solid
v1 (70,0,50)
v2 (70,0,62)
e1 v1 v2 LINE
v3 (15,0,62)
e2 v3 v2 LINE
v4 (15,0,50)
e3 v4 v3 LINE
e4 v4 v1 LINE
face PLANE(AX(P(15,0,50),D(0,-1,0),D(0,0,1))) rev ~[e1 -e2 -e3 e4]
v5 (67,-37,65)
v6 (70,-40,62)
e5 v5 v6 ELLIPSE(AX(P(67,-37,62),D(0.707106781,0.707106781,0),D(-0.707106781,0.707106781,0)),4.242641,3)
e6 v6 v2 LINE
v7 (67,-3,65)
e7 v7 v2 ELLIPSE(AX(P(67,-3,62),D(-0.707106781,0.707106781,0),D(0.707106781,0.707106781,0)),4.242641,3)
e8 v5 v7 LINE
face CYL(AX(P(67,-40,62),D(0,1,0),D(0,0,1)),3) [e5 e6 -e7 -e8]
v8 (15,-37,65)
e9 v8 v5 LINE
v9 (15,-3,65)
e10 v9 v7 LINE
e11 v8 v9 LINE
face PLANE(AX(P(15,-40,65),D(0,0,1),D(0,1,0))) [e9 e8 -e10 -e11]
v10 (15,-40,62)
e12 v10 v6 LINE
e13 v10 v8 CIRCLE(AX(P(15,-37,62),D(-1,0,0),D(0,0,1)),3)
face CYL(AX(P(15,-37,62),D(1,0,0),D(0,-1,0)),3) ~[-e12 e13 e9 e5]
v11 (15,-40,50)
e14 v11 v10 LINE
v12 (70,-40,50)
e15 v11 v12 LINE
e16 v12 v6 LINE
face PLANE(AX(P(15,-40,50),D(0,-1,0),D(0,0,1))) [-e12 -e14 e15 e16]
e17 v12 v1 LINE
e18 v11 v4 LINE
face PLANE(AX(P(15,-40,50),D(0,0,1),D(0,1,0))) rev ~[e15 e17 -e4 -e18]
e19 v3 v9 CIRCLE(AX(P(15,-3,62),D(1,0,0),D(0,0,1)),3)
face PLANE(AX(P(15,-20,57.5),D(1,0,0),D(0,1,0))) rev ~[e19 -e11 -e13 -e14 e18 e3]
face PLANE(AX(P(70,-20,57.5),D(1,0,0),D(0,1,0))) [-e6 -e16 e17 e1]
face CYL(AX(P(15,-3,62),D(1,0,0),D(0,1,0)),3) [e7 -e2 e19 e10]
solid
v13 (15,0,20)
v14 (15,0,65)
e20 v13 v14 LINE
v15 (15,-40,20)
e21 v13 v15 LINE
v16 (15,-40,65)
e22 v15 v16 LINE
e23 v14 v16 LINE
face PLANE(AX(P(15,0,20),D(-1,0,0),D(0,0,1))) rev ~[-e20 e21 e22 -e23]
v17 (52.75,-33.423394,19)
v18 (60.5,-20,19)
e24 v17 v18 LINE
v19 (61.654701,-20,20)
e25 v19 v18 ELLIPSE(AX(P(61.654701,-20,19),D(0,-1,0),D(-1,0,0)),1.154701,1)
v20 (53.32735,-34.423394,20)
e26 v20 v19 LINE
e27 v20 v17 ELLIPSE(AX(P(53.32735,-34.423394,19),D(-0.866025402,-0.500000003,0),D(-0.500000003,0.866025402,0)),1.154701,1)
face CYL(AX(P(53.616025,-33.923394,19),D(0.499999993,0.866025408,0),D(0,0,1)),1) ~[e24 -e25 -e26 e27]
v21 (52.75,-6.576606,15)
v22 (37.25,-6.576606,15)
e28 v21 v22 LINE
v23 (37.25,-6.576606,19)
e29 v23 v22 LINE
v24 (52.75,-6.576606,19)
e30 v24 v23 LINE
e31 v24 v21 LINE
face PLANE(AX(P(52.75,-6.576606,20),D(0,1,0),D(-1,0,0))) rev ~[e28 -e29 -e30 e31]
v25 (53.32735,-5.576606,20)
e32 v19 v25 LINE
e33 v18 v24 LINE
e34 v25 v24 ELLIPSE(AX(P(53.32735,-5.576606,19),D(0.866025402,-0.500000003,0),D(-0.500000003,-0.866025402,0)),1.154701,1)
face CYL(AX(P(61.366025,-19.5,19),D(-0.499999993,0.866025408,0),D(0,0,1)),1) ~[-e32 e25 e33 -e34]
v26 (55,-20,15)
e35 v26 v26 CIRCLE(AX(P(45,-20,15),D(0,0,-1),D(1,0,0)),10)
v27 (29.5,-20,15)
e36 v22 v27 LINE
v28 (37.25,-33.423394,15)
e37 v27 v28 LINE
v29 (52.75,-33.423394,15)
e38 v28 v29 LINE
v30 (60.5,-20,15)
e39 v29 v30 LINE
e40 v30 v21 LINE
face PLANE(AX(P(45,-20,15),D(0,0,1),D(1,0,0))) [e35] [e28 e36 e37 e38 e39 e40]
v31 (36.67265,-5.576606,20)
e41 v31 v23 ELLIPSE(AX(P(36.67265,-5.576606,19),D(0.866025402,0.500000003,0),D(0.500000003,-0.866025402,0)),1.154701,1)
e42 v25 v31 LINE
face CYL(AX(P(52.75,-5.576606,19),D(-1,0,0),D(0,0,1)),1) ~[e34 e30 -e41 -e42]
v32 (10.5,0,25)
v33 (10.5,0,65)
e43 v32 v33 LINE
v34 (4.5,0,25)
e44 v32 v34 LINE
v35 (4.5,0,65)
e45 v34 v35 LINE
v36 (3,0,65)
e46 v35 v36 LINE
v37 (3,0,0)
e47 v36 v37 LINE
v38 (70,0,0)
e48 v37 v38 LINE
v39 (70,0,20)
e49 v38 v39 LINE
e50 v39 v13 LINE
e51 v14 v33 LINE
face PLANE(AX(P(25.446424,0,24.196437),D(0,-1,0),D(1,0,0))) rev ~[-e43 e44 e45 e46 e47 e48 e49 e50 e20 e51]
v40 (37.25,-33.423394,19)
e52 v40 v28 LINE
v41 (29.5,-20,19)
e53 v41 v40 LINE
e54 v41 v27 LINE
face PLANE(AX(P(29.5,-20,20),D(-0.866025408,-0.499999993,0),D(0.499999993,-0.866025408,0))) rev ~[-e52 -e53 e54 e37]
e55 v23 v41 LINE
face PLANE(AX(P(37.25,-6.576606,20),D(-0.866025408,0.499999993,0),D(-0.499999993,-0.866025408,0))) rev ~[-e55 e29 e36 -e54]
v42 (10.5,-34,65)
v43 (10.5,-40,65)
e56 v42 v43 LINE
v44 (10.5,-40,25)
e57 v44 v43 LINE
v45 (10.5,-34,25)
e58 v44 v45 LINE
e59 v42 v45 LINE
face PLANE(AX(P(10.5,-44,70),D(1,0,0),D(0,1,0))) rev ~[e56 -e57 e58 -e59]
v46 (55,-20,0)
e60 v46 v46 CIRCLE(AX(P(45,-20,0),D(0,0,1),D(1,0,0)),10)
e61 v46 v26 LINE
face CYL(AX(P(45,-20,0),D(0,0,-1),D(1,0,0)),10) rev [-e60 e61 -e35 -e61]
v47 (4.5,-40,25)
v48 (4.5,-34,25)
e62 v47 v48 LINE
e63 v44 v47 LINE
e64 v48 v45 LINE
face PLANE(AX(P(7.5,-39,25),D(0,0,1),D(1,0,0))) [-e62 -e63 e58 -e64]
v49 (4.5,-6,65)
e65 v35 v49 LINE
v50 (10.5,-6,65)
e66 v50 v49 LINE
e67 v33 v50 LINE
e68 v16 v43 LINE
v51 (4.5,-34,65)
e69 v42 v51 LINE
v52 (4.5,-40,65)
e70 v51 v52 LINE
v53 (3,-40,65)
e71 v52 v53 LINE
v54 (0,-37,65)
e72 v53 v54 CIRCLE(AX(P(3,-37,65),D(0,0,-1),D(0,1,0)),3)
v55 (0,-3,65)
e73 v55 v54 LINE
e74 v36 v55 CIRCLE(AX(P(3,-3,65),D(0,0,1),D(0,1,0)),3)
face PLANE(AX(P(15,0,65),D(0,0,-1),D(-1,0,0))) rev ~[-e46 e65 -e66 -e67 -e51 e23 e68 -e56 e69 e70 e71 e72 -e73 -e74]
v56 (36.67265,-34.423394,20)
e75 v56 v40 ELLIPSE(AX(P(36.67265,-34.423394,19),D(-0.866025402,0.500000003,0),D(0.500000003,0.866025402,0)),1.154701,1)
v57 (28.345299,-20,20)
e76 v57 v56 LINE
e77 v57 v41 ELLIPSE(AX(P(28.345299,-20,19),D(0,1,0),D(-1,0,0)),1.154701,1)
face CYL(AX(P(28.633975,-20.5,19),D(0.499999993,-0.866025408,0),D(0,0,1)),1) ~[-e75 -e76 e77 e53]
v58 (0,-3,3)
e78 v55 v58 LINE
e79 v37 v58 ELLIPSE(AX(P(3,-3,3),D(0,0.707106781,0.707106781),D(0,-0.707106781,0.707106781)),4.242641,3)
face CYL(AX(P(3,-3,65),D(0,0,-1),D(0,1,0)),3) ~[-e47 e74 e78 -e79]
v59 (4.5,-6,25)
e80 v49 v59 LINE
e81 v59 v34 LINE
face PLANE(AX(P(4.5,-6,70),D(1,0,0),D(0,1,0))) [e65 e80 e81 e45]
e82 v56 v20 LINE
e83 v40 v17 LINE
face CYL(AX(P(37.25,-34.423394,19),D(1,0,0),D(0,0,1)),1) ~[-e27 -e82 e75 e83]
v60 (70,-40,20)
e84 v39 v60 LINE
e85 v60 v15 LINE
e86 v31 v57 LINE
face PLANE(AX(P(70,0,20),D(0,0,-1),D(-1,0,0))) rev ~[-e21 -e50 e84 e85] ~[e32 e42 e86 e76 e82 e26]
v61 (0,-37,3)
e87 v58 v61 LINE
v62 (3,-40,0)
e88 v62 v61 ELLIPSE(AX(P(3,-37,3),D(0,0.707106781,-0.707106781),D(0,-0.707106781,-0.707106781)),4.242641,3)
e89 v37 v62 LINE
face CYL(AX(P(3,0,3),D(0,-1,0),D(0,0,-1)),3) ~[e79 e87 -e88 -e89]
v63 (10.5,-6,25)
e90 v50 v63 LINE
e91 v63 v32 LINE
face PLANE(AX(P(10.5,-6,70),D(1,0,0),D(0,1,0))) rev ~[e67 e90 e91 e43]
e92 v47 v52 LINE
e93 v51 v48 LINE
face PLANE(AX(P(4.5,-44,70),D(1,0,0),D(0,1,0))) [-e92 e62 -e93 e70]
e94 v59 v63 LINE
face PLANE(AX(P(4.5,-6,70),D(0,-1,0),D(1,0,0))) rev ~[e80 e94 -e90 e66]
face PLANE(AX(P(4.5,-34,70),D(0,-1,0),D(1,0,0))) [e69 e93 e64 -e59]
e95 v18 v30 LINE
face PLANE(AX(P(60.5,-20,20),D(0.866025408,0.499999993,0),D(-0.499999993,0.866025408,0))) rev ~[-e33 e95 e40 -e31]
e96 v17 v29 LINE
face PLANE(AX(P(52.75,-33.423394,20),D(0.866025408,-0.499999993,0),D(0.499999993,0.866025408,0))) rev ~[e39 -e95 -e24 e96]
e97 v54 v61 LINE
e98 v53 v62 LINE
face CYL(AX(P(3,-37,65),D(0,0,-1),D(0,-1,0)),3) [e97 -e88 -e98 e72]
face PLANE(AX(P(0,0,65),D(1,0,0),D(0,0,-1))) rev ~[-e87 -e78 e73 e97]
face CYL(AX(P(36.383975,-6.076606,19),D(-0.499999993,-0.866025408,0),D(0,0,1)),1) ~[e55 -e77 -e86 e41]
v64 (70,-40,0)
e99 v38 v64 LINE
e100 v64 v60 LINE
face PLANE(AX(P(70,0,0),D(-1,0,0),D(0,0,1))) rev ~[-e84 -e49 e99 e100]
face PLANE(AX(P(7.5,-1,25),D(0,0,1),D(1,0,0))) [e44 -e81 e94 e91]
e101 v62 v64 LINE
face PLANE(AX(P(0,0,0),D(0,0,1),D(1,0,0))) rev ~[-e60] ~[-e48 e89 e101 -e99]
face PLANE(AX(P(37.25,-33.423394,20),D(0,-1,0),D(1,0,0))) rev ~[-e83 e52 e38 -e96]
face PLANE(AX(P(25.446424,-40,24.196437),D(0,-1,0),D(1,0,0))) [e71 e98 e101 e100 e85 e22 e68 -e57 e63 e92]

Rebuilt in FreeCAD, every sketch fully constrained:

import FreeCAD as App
import Part
import Sketcher
from FreeCAD import Vector
Q = App.Units.Quantity


def edges_at(feature, points):
    """Names of the edges that pass closest to the given points."""
    edges = feature.Shape.Edges
    near = lambda p: min(range(len(edges)), key=lambda i: edges[i].distToShape(Part.Vertex(*p))[0])
    return sorted({f"Edge{near(p) + 1}" for p in points})

doc = App.newDocument("Part")
params = doc.addObject("Spreadsheet::Sheet", "Params")
for row, (alias, value) in enumerate([
    ("sketch1_width", "70 mm"),
    ("sketch1_width2", "55 mm"),
    ("sketch1_height", "20 mm"),
    ("sketch1_height2", "45 mm"),
    ("pad1_length", "40 mm"),
    ("sketch2_width", "15.5 mm"),
    ("pocket1_length", "5 mm"),
    ("fillet_radius", "1 mm"),
    ("sketch3_diameter", "20 mm"),
    ("pocket2_length", "20 mm"),
    ("fillet2_radius", "3 mm"),
    ("sketch4_width", "6 mm"),
    ("sketch4_height", "10 mm"),
    ("pocket3_length", "45 mm"),
    ("sketch5_width", "40 mm"),
    ("sketch5_height", "15 mm"),
    ("pad2_length", "55 mm"),
    ("fillet3_radius", "3 mm"),
], start=1):
    params.set(f"A{row}", alias)
    params.set(f"B{row}", "=" + value)
    params.setAlias(f"B{row}", alias)

body = doc.addObject("PartDesign::Body", "Body")

sketch1 = doc.addObject("Sketcher::SketchObject", "Sketch")
body.addObject(sketch1)
sketch1.AttachmentSupport = (doc.XZ_Plane, [""])
sketch1.MapMode = "FlatFace"
sketch1.addGeometry([
    Part.LineSegment(Vector(0, 0, 0), Vector(70, 0, 0)),
    Part.LineSegment(Vector(70, 0, 0), Vector(70, 20, 0)),
    Part.LineSegment(Vector(70, 20, 0), Vector(15, 20, 0)),
    Part.LineSegment(Vector(15, 20, 0), Vector(15, 65, 0)),
    Part.LineSegment(Vector(15, 65, 0), Vector(0, 65, 0)),
    Part.LineSegment(Vector(0, 65, 0), Vector(0, 0, 0)),
], False)
sketch1.addConstraint([
    Sketcher.Constraint("Coincident", 0, 2, 1, 1),
    Sketcher.Constraint("Coincident", 1, 2, 2, 1),
    Sketcher.Constraint("Coincident", 2, 2, 3, 1),
    Sketcher.Constraint("Coincident", 3, 2, 4, 1),
    Sketcher.Constraint("Coincident", 4, 2, 5, 1),
    Sketcher.Constraint("Coincident", 5, 2, 0, 1),
    Sketcher.Constraint("Horizontal", 0),
    Sketcher.Constraint("Vertical", 1),
    Sketcher.Constraint("Horizontal", 2),
    Sketcher.Constraint("Vertical", 3),
    Sketcher.Constraint("Horizontal", 4),
    Sketcher.Constraint("Vertical", 5),
    Sketcher.Constraint("Coincident", 5, 2, -1, 1),
    Sketcher.Constraint("DistanceX", 0, 1, 0, 2, Q("70 mm")),
    Sketcher.Constraint("DistanceX", 2, 2, 2, 1, Q("55 mm")),
    Sketcher.Constraint("DistanceY", 1, 1, 1, 2, Q("20 mm")),
    Sketcher.Constraint("DistanceY", 3, 1, 3, 2, Q("45 mm")),
])
sketch1.setExpression("Constraints[13]", "Params.sketch1_width")
sketch1.setExpression("Constraints[14]", "Params.sketch1_width2")
sketch1.setExpression("Constraints[15]", "Params.sketch1_height")
sketch1.setExpression("Constraints[16]", "Params.sketch1_height2")
pad1 = doc.addObject("PartDesign::Pad", "Pad")
body.addObject(pad1)
pad1.Profile = sketch1
pad1.setExpression("Length", "Params.pad1_length")

sketch2 = doc.addObject("Sketcher::SketchObject", "Sketch001")
body.addObject(sketch2)
sketch2.AttachmentSupport = (doc.XY_Plane, [""])
sketch2.MapMode = "FlatFace"
sketch2.AttachmentOffset = App.Placement(Vector(0, 0, 20), App.Rotation())
sketch2.addGeometry([
    Part.LineSegment(Vector(30, -20, 0), Vector(37, -33, 0)),
    Part.LineSegment(Vector(37, -33, 0), Vector(53, -33, 0)),
    Part.LineSegment(Vector(53, -33, 0), Vector(60, -20, 0)),
    Part.LineSegment(Vector(60, -20, 0), Vector(53, -7, 0)),
    Part.LineSegment(Vector(53, -7, 0), Vector(37, -7, 0)),
    Part.LineSegment(Vector(37, -7, 0), Vector(30, -20, 0)),
], False)
sketch2.addConstraint([
    Sketcher.Constraint("Coincident", 0, 2, 1, 1),
    Sketcher.Constraint("Coincident", 1, 2, 2, 1),
    Sketcher.Constraint("Coincident", 2, 2, 3, 1),
    Sketcher.Constraint("Coincident", 3, 2, 4, 1),
    Sketcher.Constraint("Coincident", 4, 2, 5, 1),
    Sketcher.Constraint("Coincident", 5, 2, 0, 1),
    Sketcher.Constraint("Horizontal", 1),
    Sketcher.Constraint("Horizontal", 4),
    Sketcher.Constraint("Parallel", 0, 3),
    Sketcher.Constraint("Parallel", 2, 5),
    Sketcher.Constraint("Horizontal", 2, 2, 5, 2),
    Sketcher.Constraint("Vertical", 1, 2, 3, 2),
    Sketcher.Constraint("Vertical", 0, 2, 4, 2),
    Sketcher.Constraint("Angle", 0, Q("-60 deg")),
    Sketcher.Constraint("DistanceX", 1, 1, 1, 2, Q("15.5 mm")),
    Sketcher.Constraint("DistanceY", 2, 2, -1, 1, Q("20 mm")),
    Sketcher.Constraint("DistanceX", 5, 2, 2, 2, Q("31 mm")),
    Sketcher.Constraint("DistanceX", -1, 1, 2, 2, Q("60.5 mm")),
])
sketch2.setExpression("Constraints[14]", "Params.sketch2_width")
pocket1 = doc.addObject("PartDesign::Pocket", "Pocket")
body.addObject(pocket1)
pocket1.Profile = sketch2
pocket1.setExpression("Length", "Params.pocket1_length")
doc.recompute()

fillet = doc.addObject("PartDesign::Fillet", "Fillet")
body.addObject(fillet)
fillet.Base = (pocket1, edges_at(pocket1, [
    (33.375, -13.288, 20),
    (45, -6.577, 20),
    (56.625, -13.288, 20),
    (56.625, -26.712, 20),
    (45, -33.423, 20),
    (33.375, -26.712, 20),
]))
fillet.setExpression("Radius", "Params.fillet_radius")

sketch3 = doc.addObject("Sketcher::SketchObject", "Sketch002")
body.addObject(sketch3)
sketch3.AttachmentSupport = (doc.XY_Plane, [""])
sketch3.MapMode = "FlatFace"
sketch3.addGeometry(Part.Circle(Vector(45, -20, 0), Vector(0, 0, 1), 10), False)
sketch3.addConstraint([
    Sketcher.Constraint("Diameter", 0, Q("20 mm")),
    Sketcher.Constraint("DistanceX", -1, 1, 0, 3, Q("45 mm")),
    Sketcher.Constraint("DistanceY", 0, 3, -1, 1, Q("20 mm")),
])
sketch3.setExpression("Constraints[0]", "Params.sketch3_diameter")
pocket2 = doc.addObject("PartDesign::Pocket", "Pocket001")
body.addObject(pocket2)
pocket2.Profile = sketch3
pocket2.setExpression("Length", "Params.pocket2_length")
pocket2.Reversed = True
doc.recompute()

fillet2 = doc.addObject("PartDesign::Fillet", "Fillet001")
body.addObject(fillet2)
fillet2.Base = (pocket2, edges_at(pocket2, [(0, -20, 0), (0, 0, 32.5), (0, -40, 32.5)]))
fillet2.setExpression("Radius", "Params.fillet2_radius")

sketch4 = doc.addObject("Sketcher::SketchObject", "Sketch003")
body.addObject(sketch4)
sketch4.AttachmentSupport = (doc.XY_Plane, [""])
sketch4.MapMode = "FlatFace"
sketch4.AttachmentOffset = App.Placement(Vector(0, 0, 70), App.Rotation())
sketch4.addGeometry([
    Part.LineSegment(Vector(4, 4, 0), Vector(4, -6, 0)),
    Part.LineSegment(Vector(4, -6, 0), Vector(10, -6, 0)),
    Part.LineSegment(Vector(10, -6, 0), Vector(10, 4, 0)),
    Part.LineSegment(Vector(10, 4, 0), Vector(4, 4, 0)),
    Part.LineSegment(Vector(4, -34, 0), Vector(4, -44, 0)),
    Part.LineSegment(Vector(4, -44, 0), Vector(10, -44, 0)),
    Part.LineSegment(Vector(10, -44, 0), Vector(10, -34, 0)),
    Part.LineSegment(Vector(10, -34, 0), Vector(4, -34, 0)),
], False)
sketch4.addConstraint([
    Sketcher.Constraint("Coincident", 0, 2, 1, 1),
    Sketcher.Constraint("Coincident", 1, 2, 2, 1),
    Sketcher.Constraint("Coincident", 2, 2, 3, 1),
    Sketcher.Constraint("Coincident", 3, 2, 0, 1),
    Sketcher.Constraint("Coincident", 4, 2, 5, 1),
    Sketcher.Constraint("Coincident", 5, 2, 6, 1),
    Sketcher.Constraint("Coincident", 6, 2, 7, 1),
    Sketcher.Constraint("Coincident", 7, 2, 4, 1),
    Sketcher.Constraint("Vertical", 0),
    Sketcher.Constraint("Horizontal", 1),
    Sketcher.Constraint("Vertical", 2),
    Sketcher.Constraint("Horizontal", 3),
    Sketcher.Constraint("Vertical", 4),
    Sketcher.Constraint("Horizontal", 5),
    Sketcher.Constraint("Vertical", 6),
    Sketcher.Constraint("Horizontal", 7),
    Sketcher.Constraint("Vertical", 3, 2, 4, 2),
    Sketcher.Constraint("Vertical", 2, 2, 5, 2),
    Sketcher.Constraint("Equal", 2, 4),
    Sketcher.Constraint("DistanceX", 1, 1, 1, 2, Q("6 mm")),
    Sketcher.Constraint("DistanceY", 0, 2, 0, 1, Q("10 mm")),
    Sketcher.Constraint("DistanceY", 0, 2, -1, 1, Q("6 mm")),
    Sketcher.Constraint("DistanceY", 4, 2, -1, 1, Q("44 mm")),
    Sketcher.Constraint("DistanceX", -1, 1, 0, 2, Q("4.5 mm")),
])
sketch4.setExpression("Constraints[19]", "Params.sketch4_width")
sketch4.setExpression("Constraints[20]", "Params.sketch4_height")
pocket3 = doc.addObject("PartDesign::Pocket", "Pocket002")
body.addObject(pocket3)
pocket3.Profile = sketch4
pocket3.setExpression("Length", "Params.pocket3_length")
body2 = doc.addObject("PartDesign::Body", "Body001")

sketch5 = doc.addObject("Sketcher::SketchObject", "Sketch004")
body2.addObject(sketch5)
sketch5.AttachmentSupport = (doc.getObject("YZ_Plane001"), [""])
sketch5.MapMode = "FlatFace"
sketch5.AttachmentOffset = App.Placement(Vector(0, 0, 15), App.Rotation())
sketch5.addGeometry([
    Part.LineSegment(Vector(-40, 65, 0), Vector(-40, 50, 0)),
    Part.LineSegment(Vector(-40, 50, 0), Vector(0, 50, 0)),
    Part.LineSegment(Vector(0, 50, 0), Vector(0, 65, 0)),
    Part.LineSegment(Vector(0, 65, 0), Vector(-40, 65, 0)),
], False)
sketch5.addConstraint([
    Sketcher.Constraint("Coincident", 0, 2, 1, 1),
    Sketcher.Constraint("Coincident", 1, 2, 2, 1),
    Sketcher.Constraint("Coincident", 2, 2, 3, 1),
    Sketcher.Constraint("Coincident", 3, 2, 0, 1),
    Sketcher.Constraint("Vertical", 0),
    Sketcher.Constraint("Horizontal", 1),
    Sketcher.Constraint("Vertical", 2),
    Sketcher.Constraint("Horizontal", 3),
    Sketcher.Constraint("PointOnObject", 1, 2, -2),
    Sketcher.Constraint("DistanceX", 1, 1, 1, 2, Q("40 mm")),
    Sketcher.Constraint("DistanceY", 0, 2, 0, 1, Q("15 mm")),
    Sketcher.Constraint("DistanceY", -1, 1, 0, 2, Q("50 mm")),
])
sketch5.setExpression("Constraints[9]", "Params.sketch5_width")
sketch5.setExpression("Constraints[10]", "Params.sketch5_height")
pad2 = doc.addObject("PartDesign::Pad", "Pad001")
body2.addObject(pad2)
pad2.Profile = sketch5
pad2.setExpression("Length", "Params.pad2_length")
doc.recompute()

fillet3 = doc.addObject("PartDesign::Fillet", "Fillet002")
body2.addObject(fillet3)
fillet3.Base = (pad2, edges_at(pad2, [(70, -20, 65), (42.5, 0, 65), (42.5, -40, 65)]))
fillet3.setExpression("Radius", "Params.fillet3_radius")

doc.recompute()
